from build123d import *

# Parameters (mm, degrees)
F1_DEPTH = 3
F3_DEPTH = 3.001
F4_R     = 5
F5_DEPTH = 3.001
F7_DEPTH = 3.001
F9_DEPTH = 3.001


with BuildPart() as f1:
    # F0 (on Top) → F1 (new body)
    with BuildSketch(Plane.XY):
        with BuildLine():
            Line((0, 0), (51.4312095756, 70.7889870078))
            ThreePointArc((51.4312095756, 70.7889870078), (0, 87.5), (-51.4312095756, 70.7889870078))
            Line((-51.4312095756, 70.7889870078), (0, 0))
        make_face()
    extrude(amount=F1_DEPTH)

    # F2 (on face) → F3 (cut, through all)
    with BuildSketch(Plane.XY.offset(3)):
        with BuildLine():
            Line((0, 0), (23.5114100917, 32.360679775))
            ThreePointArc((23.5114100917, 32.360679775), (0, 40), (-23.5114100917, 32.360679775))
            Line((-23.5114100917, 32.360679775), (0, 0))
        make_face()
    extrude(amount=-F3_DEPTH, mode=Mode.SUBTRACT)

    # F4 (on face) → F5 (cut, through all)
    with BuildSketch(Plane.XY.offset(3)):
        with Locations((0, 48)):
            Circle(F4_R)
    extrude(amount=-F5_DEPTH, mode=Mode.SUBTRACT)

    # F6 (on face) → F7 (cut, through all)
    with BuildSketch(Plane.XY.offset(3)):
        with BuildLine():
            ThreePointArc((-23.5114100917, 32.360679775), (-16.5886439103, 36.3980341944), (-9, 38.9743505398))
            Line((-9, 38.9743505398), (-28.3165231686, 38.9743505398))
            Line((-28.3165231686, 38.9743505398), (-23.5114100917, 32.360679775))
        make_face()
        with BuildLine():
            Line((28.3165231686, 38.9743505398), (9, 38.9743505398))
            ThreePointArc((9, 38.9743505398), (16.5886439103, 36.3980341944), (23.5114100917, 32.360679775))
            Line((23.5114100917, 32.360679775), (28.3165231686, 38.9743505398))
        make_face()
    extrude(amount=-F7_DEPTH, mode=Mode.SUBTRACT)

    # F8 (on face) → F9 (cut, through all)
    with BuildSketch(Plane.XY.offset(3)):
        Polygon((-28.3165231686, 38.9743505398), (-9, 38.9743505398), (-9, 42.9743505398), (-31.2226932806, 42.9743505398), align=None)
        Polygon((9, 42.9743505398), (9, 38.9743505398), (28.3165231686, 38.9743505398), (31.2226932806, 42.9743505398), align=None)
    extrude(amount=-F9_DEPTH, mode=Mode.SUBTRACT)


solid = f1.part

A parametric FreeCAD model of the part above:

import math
import FreeCAD as App
import Part
import Sketcher

V = App.Vector
Q = App.Units.Quantity

doc = App.newDocument("Part")
body = doc.addObject("PartDesign::Body", "Body")

sketch1 = body.newObject("Sketcher::SketchObject", "Sketch")
sketch1.AttachmentSupport = (doc.getObject("XY_Plane"), [""])
sketch1.MapMode = "FlatFace"
sketch1.addGeometry(Part.LineSegment(V(0, 0, 0), V(51.43121, 70.788987, 0)), False)
sketch1.addGeometry(Part.ArcOfCircle(Part.Circle(V(0, 0, 0), V(0, 0, 1), 87.5), math.radians(54), math.radians(126)), False)
sketch1.addGeometry(Part.LineSegment(V(-51.43121, 70.788987, 0), V(0, 0, 0)), False)
sketch1.addConstraint(Sketcher.Constraint("Coincident", 0, 2, 1, 1))
sketch1.addConstraint(Sketcher.Constraint("Coincident", 1, 2, 2, 1))
sketch1.addConstraint(Sketcher.Constraint("Coincident", 2, 2, 0, 1))
sketch1.addConstraint(Sketcher.Constraint("Coincident", 1, 3, -1, 1))
sketch1.addConstraint(Sketcher.Constraint("Coincident", 2, 2, -1, 1))
sketch1.addConstraint(Sketcher.Constraint("Horizontal", 0, 2, 1, 2))
sketch1.addConstraint(Sketcher.Constraint("Radius", 1, Q("87.5 mm")))
sketch1.addConstraint(Sketcher.Constraint("Angle", 0, Q("54 deg")))
pad1 = body.newObject("PartDesign::Pad", "Pad")
pad1.Profile = sketch1
pad1.Length = 3

sketch2 = body.newObject("Sketcher::SketchObject", "Sketch001")
sketch2.AttachmentSupport = (doc.getObject("XY_Plane"), [""])
sketch2.MapMode = "FlatFace"
sketch2.AttachmentOffset = App.Placement(V(0, 0, 3), App.Rotation())
sketch2.addGeometry(Part.LineSegment(V(0, 0, 0), V(23.51141, 32.36068, 0)), False)
sketch2.addGeometry(Part.ArcOfCircle(Part.Circle(V(0, 0, 0), V(0, 0, 1), 40), math.radians(54), math.radians(126)), False)
sketch2.addGeometry(Part.LineSegment(V(-23.51141, 32.36068, 0), V(0, 0, 0)), False)
sketch2.addConstraint(Sketcher.Constraint("Coincident", 0, 2, 1, 1))
sketch2.addConstraint(Sketcher.Constraint("Coincident", 1, 2, 2, 1))
sketch2.addConstraint(Sketcher.Constraint("Coincident", 2, 2, 0, 1))
sketch2.addConstraint(Sketcher.Constraint("Coincident", 1, 3, -1, 1))
sketch2.addConstraint(Sketcher.Constraint("Coincident", 2, 2, -1, 1))
sketch2.addConstraint(Sketcher.Constraint("Horizontal", 0, 2, 1, 2))
sketch2.addConstraint(Sketcher.Constraint("Radius", 1, Q("40 mm")))
sketch2.addConstraint(Sketcher.Constraint("Angle", 0, Q("54 deg")))
pocket1 = body.newObject("PartDesign::Pocket", "Pocket")
pocket1.Profile = sketch2
pocket1.Type = "ThroughAll"

sketch3 = body.newObject("Sketcher::SketchObject", "Sketch002")
sketch3.AttachmentSupport = (doc.getObject("XY_Plane"), [""])
sketch3.MapMode = "FlatFace"
sketch3.AttachmentOffset = App.Placement(V(0, 0, 3), App.Rotation())
sketch3.addGeometry(Part.Circle(V(0, 48, 0), V(0, 0, 1), 5), False)
sketch3.addConstraint(Sketcher.Constraint("PointOnObject", 0, 3, -2))
sketch3.addConstraint(Sketcher.Constraint("Diameter", 0, Q("10 mm")))
sketch3.addConstraint(Sketcher.Constraint("DistanceY", -1, 1, 0, 3, Q("48 mm")))
pocket2 = body.newObject("PartDesign::Pocket", "Pocket001")
pocket2.Profile = sketch3
pocket2.Type = "ThroughAll"

sketch4 = body.newObject("Sketcher::SketchObject", "Sketch003")
sketch4.AttachmentSupport = (doc.getObject("XY_Plane"), [""])
sketch4.MapMode = "FlatFace"
sketch4.AttachmentOffset = App.Placement(V(0, 0, 3), App.Rotation())
sketch4.addGeometry(Part.ArcOfCircle(Part.Circle(V(0, 0, 0), V(0, 0, 1), 40), math.radians(103.002878), math.radians(126)), False)
sketch4.addGeometry(Part.LineSegment(V(-9, 38.974351, 0), V(-28.316523, 38.974351, 0)), False)
sketch4.addGeometry(Part.LineSegment(V(-28.316523, 38.974351, 0), V(-23.51141, 32.36068, 0)), False)
sketch4.addGeometry(Part.LineSegment(V(28.316523, 38.974351, 0), V(9, 38.974351, 0)), False)
sketch4.addGeometry(Part.ArcOfCircle(Part.Circle(V(0, 0, 0), V(0, 0, 1), 40), math.radians(54), math.radians(76.997122)), False)
sketch4.addGeometry(Part.LineSegment(V(23.51141, 32.36068, 0), V(28.316523, 38.974351, 0)), False)
sketch4.addConstraint(Sketcher.Constraint("Coincident", 0, 1, 1, 1))
sketch4.addConstraint(Sketcher.Constraint("Coincident", 1, 2, 2, 1))
sketch4.addConstraint(Sketcher.Constraint("Coincident", 2, 2, 0, 2))
sketch4.addConstraint(Sketcher.Constraint("Coincident", 3, 2, 4, 2))
sketch4.addConstraint(Sketcher.Constraint("Coincident", 4, 1, 5, 1))
sketch4.addConstraint(Sketcher.Constraint("Coincident", 5, 2, 3, 1))
sketch4.addConstraint(Sketcher.Constraint("Horizontal", 1))
sketch4.addConstraint(Sketcher.Constraint("Horizontal", 3))
sketch4.addConstraint(Sketcher.Constraint("Coincident", 0, 3, -1, 1))
sketch4.addConstraint(Sketcher.Constraint("Coincident", 4, 3, -1, 1))
sketch4.addConstraint(Sketcher.Constraint("Equal", 0, 4))
sketch4.addConstraint(Sketcher.Constraint("Symmetric", 1, 2, 5, 2, -2))
sketch4.addConstraint(Sketcher.Constraint("Horizontal", 2, 2, 4, 1))
sketch4.addConstraint(Sketcher.Constraint("Radius", 0, Q("40 mm")))
sketch4.addConstraint(Sketcher.Constraint("Angle", 2, Q("-54 deg")))
sketch4.addConstraint(Sketcher.Constraint("DistanceX", 0, 1, -1, 1, Q("9 mm")))
sketch4.addConstraint(Sketcher.Constraint("DistanceX", 1, 2, 1, 1, Q("19.316523 mm")))
pocket3 = body.newObject("PartDesign::Pocket", "Pocket002")
pocket3.Profile = sketch4
pocket3.Type = "ThroughAll"

sketch5 = body.newObject("Sketcher::SketchObject", "Sketch004")
sketch5.AttachmentSupport = (doc.getObject("XY_Plane"), [""])
sketch5.MapMode = "FlatFace"
sketch5.AttachmentOffset = App.Placement(V(0, 0, 3), App.Rotation())
sketch5.addGeometry(Part.LineSegment(V(-28.316523, 38.974351, 0), V(-9, 38.974351, 0)), False)
sketch5.addGeometry(Part.LineSegment(V(-9, 38.974351, 0), V(-9, 42.974351, 0)), False)
sketch5.addGeometry(Part.LineSegment(V(-9, 42.974351, 0), V(-31.222693, 42.974351, 0)), False)
sketch5.addGeometry(Part.LineSegment(V(-31.222693, 42.974351, 0), V(-28.316523, 38.974351, 0)), False)
sketch5.addGeometry(Part.LineSegment(V(9, 42.974351, 0), V(9, 38.974351, 0)), False)
sketch5.addGeometry(Part.LineSegment(V(9, 38.974351, 0), V(28.316523, 38.974351, 0)), False)
sketch5.addGeometry(Part.LineSegment(V(28.316523, 38.974351, 0), V(31.222693, 42.974351, 0)), False)
sketch5.addGeometry(Part.LineSegment(V(31.222693, 42.974351, 0), V(9, 42.974351, 0)), False)
sketch5.addConstraint(Sketcher.Constraint("Coincident", 0, 2, 1, 1))
sketch5.addConstraint(Sketcher.Constraint("Coincident", 1, 2, 2, 1))
sketch5.addConstraint(Sketcher.Constraint("Coincident", 2, 2, 3, 1))
sketch5.addConstraint(Sketcher.Constraint("Coincident", 3, 2, 0, 1))
sketch5.addConstraint(Sketcher.Constraint("Coincident", 4, 2, 5, 1))
sketch5.addConstraint(Sketcher.Constraint("Coincident", 5, 2, 6, 1))
sketch5.addConstraint(Sketcher.Constraint("Coincident", 6, 2, 7, 1))
sketch5.addConstraint(Sketcher.Constraint("Coincident", 7, 2, 4, 1))
sketch5.addConstraint(Sketcher.Constraint("Horizontal", 0))
sketch5.addConstraint(Sketcher.Constraint("Vertical", 1))
sketch5.addConstraint(Sketcher.Constraint("Horizontal", 2))
sketch5.addConstraint(Sketcher.Constraint("Vertical", 4))
sketch5.addConstraint(Sketcher.Constraint("Horizontal", 5))
sketch5.addConstraint(Sketcher.Constraint("Horizontal", 7))
sketch5.addConstraint(Sketcher.Constraint("Symmetric", 0, 2, 4, 2, -2))
sketch5.addConstraint(Sketcher.Constraint("Symmetric", 2, 2, 6, 2, -2))
sketch5.addConstraint(Sketcher.Constraint("Equal", 0, 5))
sketch5.addConstraint(Sketcher.Constraint("DistanceY", 1, 1, 1, 2, Q("4 mm")))
sketch5.addConstraint(Sketcher.Constraint("Angle", 3, Q("-54 deg")))
sketch5.addConstraint(Sketcher.Constraint("DistanceX", 0, 2, -1, 1, Q("9 mm")))
sketch5.addConstraint(Sketcher.Constraint("DistanceX", 0, 1, 0, 2, Q("19.316523 mm")))
sketch5.addConstraint(Sketcher.Constraint("DistanceY", -1, 1, 0, 2, Q("38.974351 mm")))
pocket4 = body.newObject("PartDesign::Pocket", "Pocket003")
pocket4.Profile = sketch5
pocket4.Type = "ThroughAll"

doc.recompute()
